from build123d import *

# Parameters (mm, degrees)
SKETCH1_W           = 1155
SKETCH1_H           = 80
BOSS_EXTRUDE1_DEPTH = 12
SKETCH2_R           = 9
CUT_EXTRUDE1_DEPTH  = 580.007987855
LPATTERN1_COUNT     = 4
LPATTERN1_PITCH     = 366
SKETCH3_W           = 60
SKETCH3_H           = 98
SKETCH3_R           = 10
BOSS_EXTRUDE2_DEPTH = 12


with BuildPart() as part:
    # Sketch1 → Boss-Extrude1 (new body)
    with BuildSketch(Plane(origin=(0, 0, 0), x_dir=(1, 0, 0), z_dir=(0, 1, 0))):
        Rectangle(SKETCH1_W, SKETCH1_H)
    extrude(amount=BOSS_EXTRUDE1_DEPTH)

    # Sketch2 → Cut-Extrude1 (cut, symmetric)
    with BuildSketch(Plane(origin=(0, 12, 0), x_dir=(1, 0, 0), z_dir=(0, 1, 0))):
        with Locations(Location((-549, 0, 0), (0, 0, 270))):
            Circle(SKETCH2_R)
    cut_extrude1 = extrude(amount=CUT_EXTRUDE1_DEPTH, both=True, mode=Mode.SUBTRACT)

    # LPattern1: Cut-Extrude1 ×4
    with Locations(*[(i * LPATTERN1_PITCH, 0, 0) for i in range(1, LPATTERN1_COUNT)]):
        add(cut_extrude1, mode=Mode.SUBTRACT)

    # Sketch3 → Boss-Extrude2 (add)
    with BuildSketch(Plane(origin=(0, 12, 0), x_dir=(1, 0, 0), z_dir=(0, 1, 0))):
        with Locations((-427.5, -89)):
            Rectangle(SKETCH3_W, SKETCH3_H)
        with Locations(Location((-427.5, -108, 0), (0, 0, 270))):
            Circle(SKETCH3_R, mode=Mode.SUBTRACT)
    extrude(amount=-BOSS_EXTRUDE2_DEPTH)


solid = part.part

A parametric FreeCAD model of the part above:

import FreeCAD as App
import Part
import Sketcher
from FreeCAD import Vector


def add_polygon(sketch, points):
    """Adds a closed chain of lines whose ends are joined by coincident constraints."""
    first, n = sketch.GeometryCount, len(points)
    for a, b in zip(points, points[1:] + points[:1]):
        sketch.addGeometry(Part.LineSegment(App.Vector(*a, 0), App.Vector(*b, 0)), False)
    for i in range(n):
        sketch.addConstraint(Sketcher.Constraint("Coincident", first + i, 2, first + (i + 1) % n, 1))

doc = App.newDocument("Part")
body = doc.addObject("PartDesign::Body", "Body")

# Sketch on XZ plane
sketch1 = body.newObject("Sketcher::SketchObject", "Sketch")
sketch1.AttachmentSupport = (doc.getObject("XZ_Plane"), [""])
sketch1.MapMode = "FlatFace"
add_polygon(sketch1, [(-578, -40), (-578, 40), (578, 40), (578, -40)])  # lines 0-3
sketch1.addConstraint([
    Sketcher.Constraint("Vertical", 0),
    Sketcher.Constraint("Horizontal", 1),
    Sketcher.Constraint("Vertical", 2),
    Sketcher.Constraint("Horizontal", 3),
    Sketcher.Constraint("Symmetric", 0, 2, 2, 2, -1, 1),
    Sketcher.Constraint("DistanceX", 1, 1, 1, 2, 1155.0),
    Sketcher.Constraint("DistanceY", 0, 1, 0, 2, 80.0),
])
pad1 = body.newObject("PartDesign::Pad", "Pad")
pad1.Profile = sketch1
pad1.Length = 12
pad1.Reversed = True

# Sketch on XZ plane
sketch2 = body.newObject("Sketcher::SketchObject", "Sketch001")
sketch2.AttachmentSupport = (doc.getObject("XZ_Plane"), [""])
sketch2.MapMode = "FlatFace"
sketch2.AttachmentOffset = App.Placement(Vector(0, 0, -12), App.Rotation())
sketch2.addGeometry(Part.Circle(Vector(-549, 0, 0), Vector(0, 0, 1), 9), False)
sketch2.addConstraint([
    Sketcher.Constraint("PointOnObject", 0, 3, -1),
    Sketcher.Constraint("Diameter", 0, 18.0),
    Sketcher.Constraint("DistanceX", 0, 3, -1, 1, 549.0),
])
pocket1 = body.newObject("PartDesign::Pocket", "Pocket")
pocket1.Profile = sketch2
pocket1.Length = 1160.015976
pocket1.Midplane = True
doc.recompute()

linearpattern = body.newObject("PartDesign::LinearPattern", "LinearPattern")
linearpattern.Originals = [pocket1]
linearpattern.Direction = (doc.getObject("X_Axis"), [""])
linearpattern.Mode = "offset"
linearpattern.Offset = 366
linearpattern.Occurrences = 4
body.Tip = linearpattern

# Sketch on XZ plane
sketch3 = body.newObject("Sketcher::SketchObject", "Sketch002")
sketch3.AttachmentSupport = (doc.getObject("XZ_Plane"), [""])
sketch3.MapMode = "FlatFace"
sketch3.AttachmentOffset = App.Placement(Vector(0, 0, -12), App.Rotation())
add_polygon(sketch3, [(-458, 40), (-458, 138), (-398, 138), (-398, 40)])  # lines 0-3
sketch3.addGeometry(Part.Circle(Vector(-428, 108, 0), Vector(0, 0, 1), 10), False)  # 4
sketch3.addConstraint([
    Sketcher.Constraint("Vertical", 0),
    Sketcher.Constraint("Horizontal", 1),
    Sketcher.Constraint("Vertical", 2),
    Sketcher.Constraint("Horizontal", 3),
    Sketcher.Constraint("Diameter", 4, 20.0),
    Sketcher.Constraint("DistanceX", 1, 1, 1, 2, 60.0),
    Sketcher.Constraint("DistanceY", 0, 1, 0, 2, 98.0),
    Sketcher.Constraint("DistanceY", -1, 1, 4, 3, 108.0),
    Sketcher.Constraint("DistanceY", -1, 1, 0, 2, 138.0),
    Sketcher.Constraint("DistanceX", 0, 2, 4, 3, 30.0),
    Sketcher.Constraint("DistanceX", 4, 3, -1, 1, 427.5),
])
pad2 = body.newObject("PartDesign::Pad", "Pad001")
pad2.Profile = sketch3
pad2.Length = 12

doc.recompute()
